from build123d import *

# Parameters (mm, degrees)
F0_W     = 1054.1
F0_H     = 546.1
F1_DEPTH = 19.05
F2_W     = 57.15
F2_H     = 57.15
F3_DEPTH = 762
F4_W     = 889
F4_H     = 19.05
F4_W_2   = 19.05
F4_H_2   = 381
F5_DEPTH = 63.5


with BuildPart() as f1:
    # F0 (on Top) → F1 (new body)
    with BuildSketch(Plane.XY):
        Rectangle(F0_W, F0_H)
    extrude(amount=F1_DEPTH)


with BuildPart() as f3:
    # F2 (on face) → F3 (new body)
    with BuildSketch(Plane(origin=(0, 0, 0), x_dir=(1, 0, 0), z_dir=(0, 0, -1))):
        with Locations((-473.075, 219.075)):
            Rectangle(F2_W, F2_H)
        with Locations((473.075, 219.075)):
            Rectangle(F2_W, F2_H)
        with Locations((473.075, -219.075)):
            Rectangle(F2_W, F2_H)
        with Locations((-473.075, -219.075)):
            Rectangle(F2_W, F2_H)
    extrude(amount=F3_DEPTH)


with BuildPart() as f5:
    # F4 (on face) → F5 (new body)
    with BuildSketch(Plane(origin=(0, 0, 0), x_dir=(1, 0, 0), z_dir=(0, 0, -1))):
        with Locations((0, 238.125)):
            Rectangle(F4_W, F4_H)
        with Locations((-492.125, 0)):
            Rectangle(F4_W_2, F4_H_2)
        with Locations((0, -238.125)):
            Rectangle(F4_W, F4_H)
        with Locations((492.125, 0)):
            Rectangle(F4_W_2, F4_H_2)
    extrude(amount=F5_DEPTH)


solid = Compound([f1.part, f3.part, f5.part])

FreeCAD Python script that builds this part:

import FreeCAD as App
import Part
import Sketcher
Q = App.Units.Quantity


def add_polygon(sketch, points):
    """Adds a closed chain of lines whose ends are joined by coincident constraints."""
    first, n = sketch.GeometryCount, len(points)
    for a, b in zip(points, points[1:] + points[:1]):
        sketch.addGeometry(Part.LineSegment(App.Vector(*a, 0), App.Vector(*b, 0)), False)
    for i in range(n):
        sketch.addConstraint(Sketcher.Constraint("Coincident", first + i, 2, first + (i + 1) % n, 1))

doc = App.newDocument("Part")
body = doc.addObject("PartDesign::Body", "Body")

# Sketch on XY plane
sketch1 = body.newObject("Sketcher::SketchObject", "Sketch")
sketch1.AttachmentSupport = (doc.getObject("XY_Plane"), [""])
sketch1.MapMode = "FlatFace"
add_polygon(sketch1, [(-527, 273), (-527, -273), (527, -273), (527, 273)])  # lines 0-3
sketch1.addConstraint(Sketcher.Constraint("Vertical", 0))
sketch1.addConstraint(Sketcher.Constraint("Horizontal", 1))
sketch1.addConstraint(Sketcher.Constraint("Vertical", 2))
sketch1.addConstraint(Sketcher.Constraint("Horizontal", 3))
sketch1.addConstraint(Sketcher.Constraint("Symmetric", 0, 2, 2, 2, -1, 1))
sketch1.addConstraint(Sketcher.Constraint("DistanceX", 1, 1, 1, 2, Q("41.5 in")))
sketch1.addConstraint(Sketcher.Constraint("DistanceY", 0, 2, 0, 1, Q("21.5 in")))
pad1 = body.newObject("PartDesign::Pad", "Pad")
pad1.Profile = sketch1
pad1.Length = Q("0.75 in")
body2 = doc.addObject("PartDesign::Body", "Body001")
body2.AllowCompound = True

# Sketch on XY plane
sketch2 = body2.newObject("Sketcher::SketchObject", "Sketch001")
sketch2.AttachmentSupport = (doc.getObject("XY_Plane001"), [""])
sketch2.MapMode = "FlatFace"
add_polygon(sketch2, [(-502, -248), (-502, -190), (-444, -190), (-444, -248)])  # lines 0-3
add_polygon(sketch2, [(444, -248), (444, -190), (502, -190), (502, -248)])  # lines 4-7
add_polygon(sketch2, [(444, 190), (444, 248), (502, 248), (502, 190)])  # lines 8-11
add_polygon(sketch2, [(-502, 190), (-502, 248), (-444, 248), (-444, 190)])  # lines 12-15
sketch2.addConstraint(Sketcher.Constraint("Vertical", 0))
sketch2.addConstraint(Sketcher.Constraint("Horizontal", 1))
sketch2.addConstraint(Sketcher.Constraint("Vertical", 2))
sketch2.addConstraint(Sketcher.Constraint("Horizontal", 3))
sketch2.addConstraint(Sketcher.Constraint("Vertical", 4))
sketch2.addConstraint(Sketcher.Constraint("Horizontal", 5))
sketch2.addConstraint(Sketcher.Constraint("Vertical", 6))
sketch2.addConstraint(Sketcher.Constraint("Horizontal", 7))
sketch2.addConstraint(Sketcher.Constraint("Vertical", 8))
sketch2.addConstraint(Sketcher.Constraint("Horizontal", 9))
sketch2.addConstraint(Sketcher.Constraint("Vertical", 10))
sketch2.addConstraint(Sketcher.Constraint("Horizontal", 11))
sketch2.addConstraint(Sketcher.Constraint("Vertical", 12))
sketch2.addConstraint(Sketcher.Constraint("Horizontal", 13))
sketch2.addConstraint(Sketcher.Constraint("Vertical", 14))
sketch2.addConstraint(Sketcher.Constraint("Horizontal", 15))
sketch2.addConstraint(Sketcher.Constraint("Symmetric", 2, 2, 8, 2, -1, 1))
sketch2.addConstraint(Sketcher.Constraint("Symmetric", 0, 2, 10, 2, -1, 1))
sketch2.addConstraint(Sketcher.Constraint("Symmetric", 6, 2, 12, 2, -1, 1))
sketch2.addConstraint(Sketcher.Constraint("Symmetric", 4, 2, 14, 2, -1, 1))
sketch2.addConstraint(Sketcher.Constraint("Symmetric", 1, 2, 4, 2, -2))
sketch2.addConstraint(Sketcher.Constraint("Symmetric", 3, 2, 6, 2, -2))
sketch2.addConstraint(Sketcher.Constraint("Equal", 15, 0))
sketch2.addConstraint(Sketcher.Constraint("DistanceX", 1, 2, 4, 2, Q("35 in")))
sketch2.addConstraint(Sketcher.Constraint("DistanceY", 5, 2, 10, 2, Q("15 in")))
sketch2.addConstraint(Sketcher.Constraint("DistanceX", 1, 1, 1, 2, Q("2.25 in")))
pad2 = body2.newObject("PartDesign::Pad", "Pad001")
pad2.Profile = sketch2
pad2.Length = Q("30 in")
pad2.Reversed = True
body3 = doc.addObject("PartDesign::Body", "Body002")
body3.AllowCompound = True

# Sketch on XY plane
sketch3 = body3.newObject("Sketcher::SketchObject", "Sketch002")
sketch3.AttachmentSupport = (doc.getObject("XY_Plane002"), [""])
sketch3.MapMode = "FlatFace"
add_polygon(sketch3, [(-444, -248), (-444, -229), (444, -229), (444, -248)])  # lines 0-3
add_polygon(sketch3, [(-502, -190), (-502, 190), (-483, 190), (-483, -190)])  # lines 4-7
add_polygon(sketch3, [(-444, 229), (-444, 248), (444, 248), (444, 229)])  # lines 8-11
add_polygon(sketch3, [(483, -190), (483, 190), (502, 190), (502, -190)])  # lines 12-15
sketch3.addConstraint(Sketcher.Constraint("Vertical", 0))
sketch3.addConstraint(Sketcher.Constraint("Horizontal", 1))
sketch3.addConstraint(Sketcher.Constraint("Vertical", 2))
sketch3.addConstraint(Sketcher.Constraint("Horizontal", 3))
sketch3.addConstraint(Sketcher.Constraint("Vertical", 4))
sketch3.addConstraint(Sketcher.Constraint("Horizontal", 5))
sketch3.addConstraint(Sketcher.Constraint("Vertical", 6))
sketch3.addConstraint(Sketcher.Constraint("Horizontal", 7))
sketch3.addConstraint(Sketcher.Constraint("Vertical", 8))
sketch3.addConstraint(Sketcher.Constraint("Horizontal", 9))
sketch3.addConstraint(Sketcher.Constraint("Vertical", 10))
sketch3.addConstraint(Sketcher.Constraint("Horizontal", 11))
sketch3.addConstraint(Sketcher.Constraint("Vertical", 12))
sketch3.addConstraint(Sketcher.Constraint("Horizontal", 13))
sketch3.addConstraint(Sketcher.Constraint("Vertical", 14))
sketch3.addConstraint(Sketcher.Constraint("Horizontal", 15))
sketch3.addConstraint(Sketcher.Constraint("Symmetric", 2, 2, 8, 2, -1, 1))
sketch3.addConstraint(Sketcher.Constraint("Symmetric", 0, 2, 10, 2, -1, 1))
sketch3.addConstraint(Sketcher.Constraint("Symmetric", 6, 2, 12, 2, -1, 1))
sketch3.addConstraint(Sketcher.Constraint("Symmetric", 4, 2, 14, 2, -1, 1))
sketch3.addConstraint(Sketcher.Constraint("Horizontal", 5, 2, 12, 2))
sketch3.addConstraint(Sketcher.Constraint("Vertical", 3, 2, 8, 2))
sketch3.addConstraint(Sketcher.Constraint("Equal", 15, 0))
sketch3.addConstraint(Sketcher.Constraint("DistanceX", 1, 1, 1, 2, Q("35 in")))
sketch3.addConstraint(Sketcher.Constraint("DistanceY", 4, 1, 4, 2, Q("15 in")))
sketch3.addConstraint(Sketcher.Constraint("DistanceY", 0, 2, -1, 1, Q("9 in")))
sketch3.addConstraint(Sketcher.Constraint("DistanceX", 5, 2, -1, 1, Q("19 in")))
sketch3.addConstraint(Sketcher.Constraint("DistanceX", 5, 1, 5, 2, Q("0.75 in")))
pad3 = body3.newObject("PartDesign::Pad", "Pad002")
pad3.Profile = sketch3
pad3.Length = Q("2.5 in")
pad3.Reversed = True

doc.recompute()
